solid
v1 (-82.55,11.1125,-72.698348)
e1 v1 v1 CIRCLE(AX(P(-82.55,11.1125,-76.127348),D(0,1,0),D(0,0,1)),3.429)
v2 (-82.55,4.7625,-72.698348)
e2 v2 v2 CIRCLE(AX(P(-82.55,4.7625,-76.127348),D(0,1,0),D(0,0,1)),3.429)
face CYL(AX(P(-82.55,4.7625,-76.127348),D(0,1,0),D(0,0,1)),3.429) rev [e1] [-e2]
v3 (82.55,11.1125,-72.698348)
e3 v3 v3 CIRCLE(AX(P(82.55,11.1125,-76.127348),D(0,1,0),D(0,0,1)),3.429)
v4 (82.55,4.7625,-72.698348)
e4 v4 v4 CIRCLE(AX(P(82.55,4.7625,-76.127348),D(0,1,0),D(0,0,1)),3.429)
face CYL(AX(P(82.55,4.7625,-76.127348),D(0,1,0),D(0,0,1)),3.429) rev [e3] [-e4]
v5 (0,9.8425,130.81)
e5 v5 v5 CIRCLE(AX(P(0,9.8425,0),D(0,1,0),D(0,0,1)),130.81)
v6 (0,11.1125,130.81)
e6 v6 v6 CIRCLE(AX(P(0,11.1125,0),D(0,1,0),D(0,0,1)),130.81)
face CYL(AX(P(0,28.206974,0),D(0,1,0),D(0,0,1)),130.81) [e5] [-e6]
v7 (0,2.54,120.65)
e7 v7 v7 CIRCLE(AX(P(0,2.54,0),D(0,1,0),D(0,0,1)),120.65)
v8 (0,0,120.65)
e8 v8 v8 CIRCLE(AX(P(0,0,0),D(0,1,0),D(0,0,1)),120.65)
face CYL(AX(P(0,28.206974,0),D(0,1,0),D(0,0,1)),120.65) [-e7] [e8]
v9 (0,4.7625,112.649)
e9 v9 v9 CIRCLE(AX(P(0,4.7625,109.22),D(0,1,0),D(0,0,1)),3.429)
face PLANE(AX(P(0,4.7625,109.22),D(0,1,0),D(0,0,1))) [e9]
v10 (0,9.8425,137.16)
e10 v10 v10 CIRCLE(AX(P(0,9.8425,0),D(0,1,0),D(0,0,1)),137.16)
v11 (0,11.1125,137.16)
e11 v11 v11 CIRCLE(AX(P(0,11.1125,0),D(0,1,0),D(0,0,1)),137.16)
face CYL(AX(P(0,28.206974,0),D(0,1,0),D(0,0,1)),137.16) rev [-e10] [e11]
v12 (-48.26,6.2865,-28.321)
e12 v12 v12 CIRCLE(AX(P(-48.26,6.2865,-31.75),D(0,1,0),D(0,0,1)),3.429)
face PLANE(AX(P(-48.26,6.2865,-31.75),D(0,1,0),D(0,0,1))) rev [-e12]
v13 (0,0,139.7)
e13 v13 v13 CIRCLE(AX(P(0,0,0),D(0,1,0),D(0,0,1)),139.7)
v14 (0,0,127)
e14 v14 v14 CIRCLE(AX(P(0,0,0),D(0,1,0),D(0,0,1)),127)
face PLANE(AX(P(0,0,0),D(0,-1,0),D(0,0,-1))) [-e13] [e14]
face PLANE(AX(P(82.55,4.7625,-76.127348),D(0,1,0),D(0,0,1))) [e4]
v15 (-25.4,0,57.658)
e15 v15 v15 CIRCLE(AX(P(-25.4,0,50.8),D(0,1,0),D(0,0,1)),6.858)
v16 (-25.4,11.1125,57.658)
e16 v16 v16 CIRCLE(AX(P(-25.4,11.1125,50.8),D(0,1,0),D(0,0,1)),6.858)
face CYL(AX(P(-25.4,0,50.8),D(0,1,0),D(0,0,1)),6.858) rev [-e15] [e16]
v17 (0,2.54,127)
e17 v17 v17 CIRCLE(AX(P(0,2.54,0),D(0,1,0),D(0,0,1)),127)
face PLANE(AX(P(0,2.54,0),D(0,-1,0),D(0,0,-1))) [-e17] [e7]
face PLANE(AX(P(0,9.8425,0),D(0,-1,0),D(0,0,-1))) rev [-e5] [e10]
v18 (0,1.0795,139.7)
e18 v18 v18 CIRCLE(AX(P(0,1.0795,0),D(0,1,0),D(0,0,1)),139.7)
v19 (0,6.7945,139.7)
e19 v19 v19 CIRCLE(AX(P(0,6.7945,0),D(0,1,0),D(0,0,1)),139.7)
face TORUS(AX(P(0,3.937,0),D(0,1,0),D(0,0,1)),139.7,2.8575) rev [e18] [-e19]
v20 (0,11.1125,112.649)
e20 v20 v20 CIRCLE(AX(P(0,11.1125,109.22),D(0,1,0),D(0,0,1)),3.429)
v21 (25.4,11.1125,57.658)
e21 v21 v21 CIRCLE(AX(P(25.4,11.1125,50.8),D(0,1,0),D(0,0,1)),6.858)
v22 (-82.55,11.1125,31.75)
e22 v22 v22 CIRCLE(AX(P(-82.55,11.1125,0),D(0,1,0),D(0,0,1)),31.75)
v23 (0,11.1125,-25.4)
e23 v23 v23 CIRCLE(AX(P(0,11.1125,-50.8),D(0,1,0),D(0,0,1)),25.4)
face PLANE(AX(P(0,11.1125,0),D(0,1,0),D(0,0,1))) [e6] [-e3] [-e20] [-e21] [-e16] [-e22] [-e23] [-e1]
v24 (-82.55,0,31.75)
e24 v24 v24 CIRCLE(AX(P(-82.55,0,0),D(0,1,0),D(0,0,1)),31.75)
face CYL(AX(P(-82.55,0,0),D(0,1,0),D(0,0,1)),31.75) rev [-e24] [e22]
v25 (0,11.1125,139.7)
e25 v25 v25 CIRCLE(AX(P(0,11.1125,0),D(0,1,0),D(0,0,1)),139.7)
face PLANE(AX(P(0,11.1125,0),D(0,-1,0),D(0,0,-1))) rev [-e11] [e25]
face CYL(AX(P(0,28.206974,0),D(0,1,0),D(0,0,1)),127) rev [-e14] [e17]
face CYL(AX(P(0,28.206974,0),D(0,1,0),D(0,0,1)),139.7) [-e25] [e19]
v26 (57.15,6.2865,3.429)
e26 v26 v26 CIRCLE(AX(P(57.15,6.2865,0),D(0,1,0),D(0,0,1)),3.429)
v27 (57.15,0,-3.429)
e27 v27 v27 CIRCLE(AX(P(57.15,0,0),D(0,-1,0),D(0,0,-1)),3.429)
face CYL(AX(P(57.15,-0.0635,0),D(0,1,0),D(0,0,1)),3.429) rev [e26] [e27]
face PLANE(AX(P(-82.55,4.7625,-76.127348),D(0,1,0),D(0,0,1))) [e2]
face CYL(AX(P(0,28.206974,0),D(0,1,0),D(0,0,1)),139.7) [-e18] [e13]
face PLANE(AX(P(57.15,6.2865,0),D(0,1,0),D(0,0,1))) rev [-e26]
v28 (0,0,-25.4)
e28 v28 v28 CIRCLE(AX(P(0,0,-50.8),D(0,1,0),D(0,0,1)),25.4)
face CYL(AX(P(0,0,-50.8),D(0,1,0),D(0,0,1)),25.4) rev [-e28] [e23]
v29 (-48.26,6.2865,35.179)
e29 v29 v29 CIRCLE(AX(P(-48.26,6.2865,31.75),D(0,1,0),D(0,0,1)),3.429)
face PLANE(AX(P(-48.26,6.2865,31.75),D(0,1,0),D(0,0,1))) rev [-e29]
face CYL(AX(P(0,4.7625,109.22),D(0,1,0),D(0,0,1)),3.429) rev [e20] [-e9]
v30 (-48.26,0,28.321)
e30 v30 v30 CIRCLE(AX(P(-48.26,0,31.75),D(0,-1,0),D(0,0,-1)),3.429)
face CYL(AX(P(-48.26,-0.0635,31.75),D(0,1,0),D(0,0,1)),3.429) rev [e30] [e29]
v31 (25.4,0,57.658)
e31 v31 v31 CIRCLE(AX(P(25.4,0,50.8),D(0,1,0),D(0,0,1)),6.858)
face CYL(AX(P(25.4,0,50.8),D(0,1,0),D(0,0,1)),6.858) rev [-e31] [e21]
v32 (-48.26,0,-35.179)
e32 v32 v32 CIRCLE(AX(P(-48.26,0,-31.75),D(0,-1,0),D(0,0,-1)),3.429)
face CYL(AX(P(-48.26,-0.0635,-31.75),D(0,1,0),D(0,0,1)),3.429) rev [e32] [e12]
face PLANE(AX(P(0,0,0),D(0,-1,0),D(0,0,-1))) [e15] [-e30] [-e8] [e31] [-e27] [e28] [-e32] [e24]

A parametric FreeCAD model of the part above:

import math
import FreeCAD as App
import Part
import Sketcher

V = App.Vector
Q = App.Units.Quantity

doc = App.newDocument("Part")
params = doc.addObject("Spreadsheet::Sheet", "Params")
for row, (alias, value) in enumerate([
    ("sketch1_width", "0.1 in"),
    ("sketch1_width2", "0.5 in"),
    ("sketch1_width3", "0.25 in"),
    ("sketch1_height", "0.17 in"),
    ("sketch1_height2", "0.05 in"),
    ("revolution_angle", "360 deg"),
    ("sketch2_diameter", "0.54 in"),
    ("sketch3_diameter", "2 in"),
    ("sketch3_diameter2", "2.5 in"),
    ("sketch4_diameter", "0.27 in"),
    ("pocket3_length", "0.25 in"),
    ("sketch5_diameter", "0.27 in"),
    ("pocket4_length", "0.25 in"),
], start=1):
    params.set(f"A{row}", alias)
    params.set(f"B{row}", "=" + value)
    params.setAlias(f"B{row}", alias)

body = doc.addObject("PartDesign::Body", "Body")

# Sketch on XY plane
sketch1 = body.newObject("Sketcher::SketchObject", "Sketch")
sketch1.AttachmentSupport = (doc.getObject("XY_Plane"), [""])
sketch1.MapMode = "FlatFace"
sketch1.addGeometry(Part.ArcOfCircle(Part.Circle(V(139.7, 3.937, 0), V(0, 0, 1), 2.8575), math.radians(90), math.radians(270)), False)
sketch1.addGeometry(Part.LineSegment(V(139.7, 6.7945, 0), V(139.7, 11.1125, 0)), False)
sketch1.addGeometry(Part.LineSegment(V(139.7, 11.1125, 0), V(137.16, 11.1125, 0)), False)
sketch1.addGeometry(Part.LineSegment(V(137.16, 11.1125, 0), V(137.16, 9.8425, 0)), False)
sketch1.addGeometry(Part.LineSegment(V(137.16, 9.8425, 0), V(130.81, 9.8425, 0)), False)
sketch1.addGeometry(Part.LineSegment(V(130.81, 9.8425, 0), V(130.81, 11.1125, 0)), False)
sketch1.addGeometry(Part.LineSegment(V(130.81, 11.1125, 0), V(0, 11.1125, 0)), False)
sketch1.addGeometry(Part.LineSegment(V(0, 11.1125, 0), V(0, 0, 0)), False)
sketch1.addGeometry(Part.LineSegment(V(0, 0, 0), V(120.65, 0, 0)), False)
sketch1.addGeometry(Part.LineSegment(V(120.65, 0, 0), V(120.65, 2.54, 0)), False)
sketch1.addGeometry(Part.LineSegment(V(120.65, 2.54, 0), V(127, 2.54, 0)), False)
sketch1.addGeometry(Part.LineSegment(V(127, 2.54, 0), V(127, 0, 0)), False)
sketch1.addGeometry(Part.LineSegment(V(127, 0, 0), V(139.7, 0, 0)), False)
sketch1.addGeometry(Part.LineSegment(V(139.7, 0, 0), V(139.7, 1.0795, 0)), False)
sketch1.addConstraint(Sketcher.Constraint("Coincident", 0, 1, 1, 1))
sketch1.addConstraint(Sketcher.Constraint("Coincident", 1, 2, 2, 1))
sketch1.addConstraint(Sketcher.Constraint("Coincident", 2, 2, 3, 1))
sketch1.addConstraint(Sketcher.Constraint("Coincident", 3, 2, 4, 1))
sketch1.addConstraint(Sketcher.Constraint("Coincident", 4, 2, 5, 1))
sketch1.addConstraint(Sketcher.Constraint("Coincident", 5, 2, 6, 1))
sketch1.addConstraint(Sketcher.Constraint("Coincident", 6, 2, 7, 1))
sketch1.addConstraint(Sketcher.Constraint("Coincident", 7, 2, 8, 1))
sketch1.addConstraint(Sketcher.Constraint("Coincident", 8, 2, 9, 1))
sketch1.addConstraint(Sketcher.Constraint("Coincident", 9, 2, 10, 1))
sketch1.addConstraint(Sketcher.Constraint("Coincident", 10, 2, 11, 1))
sketch1.addConstraint(Sketcher.Constraint("Coincident", 11, 2, 12, 1))
sketch1.addConstraint(Sketcher.Constraint("Coincident", 12, 2, 13, 1))
sketch1.addConstraint(Sketcher.Constraint("Coincident", 13, 2, 0, 2))
sketch1.addConstraint(Sketcher.Constraint("Vertical", 1))
sketch1.addConstraint(Sketcher.Constraint("Horizontal", 2))
sketch1.addConstraint(Sketcher.Constraint("Vertical", 3))
sketch1.addConstraint(Sketcher.Constraint("Horizontal", 4))
sketch1.addConstraint(Sketcher.Constraint("Vertical", 5))
sketch1.addConstraint(Sketcher.Constraint("Horizontal", 6))
sketch1.addConstraint(Sketcher.Constraint("Vertical", 7))
sketch1.addConstraint(Sketcher.Constraint("Horizontal", 8))
sketch1.addConstraint(Sketcher.Constraint("Vertical", 9))
sketch1.addConstraint(Sketcher.Constraint("Horizontal", 10))
sketch1.addConstraint(Sketcher.Constraint("Vertical", 11))
sketch1.addConstraint(Sketcher.Constraint("Horizontal", 12))
sketch1.addConstraint(Sketcher.Constraint("Vertical", 13))
sketch1.addConstraint(Sketcher.Constraint("Coincident", 7, 2, -1, 1))
sketch1.addConstraint(Sketcher.Constraint("PointOnObject", 11, 2, -1))
sketch1.addConstraint(Sketcher.Constraint("Horizontal", 2, 2, 5, 2))
sketch1.addConstraint(Sketcher.Constraint("Vertical", 1, 2, 12, 2))
sketch1.addConstraint(Sketcher.Constraint("Equal", 4, 10))
sketch1.addConstraint(Sketcher.Constraint("Equal", 2, 9))
sketch1.addConstraint(Sketcher.Constraint("DistanceX", 2, 2, 2, 1, Q("0.1 in")))
sketch1.addConstraint(Sketcher.Constraint("DistanceX", 12, 1, 12, 2, Q("0.5 in")))
sketch1.addConstraint(Sketcher.Constraint("DistanceX", -1, 1, 10, 2, Q("5 in")))
sketch1.addConstraint(Sketcher.Constraint("DistanceX", 4, 2, 4, 1, Q("0.25 in")))
sketch1.addConstraint(Sketcher.Constraint("DistanceY", 1, 1, 1, 2, Q("0.17 in")))
sketch1.addConstraint(Sketcher.Constraint("DistanceY", 3, 2, 3, 1, Q("0.05 in")))
sketch1.addConstraint(Sketcher.Constraint("DistanceX", -1, 1, 0, 3, Q("5.5 in")))
sketch1.addConstraint(Sketcher.Constraint("Radius", 0, Q("0.1125 in")))
sketch1.addConstraint(Sketcher.Constraint("DistanceY", 7, 2, 7, 1, Q("0.4375 in")))
sketch1.setExpression("Constraints[33]", "Params.sketch1_width")
sketch1.setExpression("Constraints[34]", "Params.sketch1_width2")
sketch1.setExpression("Constraints[36]", "Params.sketch1_width3")
sketch1.setExpression("Constraints[37]", "Params.sketch1_height")
sketch1.setExpression("Constraints[38]", "Params.sketch1_height2")
revolution = body.newObject("PartDesign::Revolution", "Revolution")
revolution.Profile = sketch1
revolution.ReferenceAxis = (sketch1, ["V_Axis"])
revolution.setExpression("Angle", "Params.revolution_angle")

# Sketch on XZ plane
sketch2 = body.newObject("Sketcher::SketchObject", "Sketch001")
sketch2.AttachmentSupport = (doc.getObject("XZ_Plane"), [""])
sketch2.MapMode = "FlatFace"
sketch2.AttachmentOffset = App.Placement(V(0, 0, -0.4375 * 25.4), App.Rotation())
sketch2.addGeometry(Part.Circle(V(-25.4, 50.8, 0), V(0, 0, 1), 6.858), False)
sketch2.addGeometry(Part.Circle(V(25.4, 50.8, 0), V(0, 0, 1), 6.858), False)
sketch2.addConstraint(Sketcher.Constraint("Equal", 0, 1))
sketch2.addConstraint(Sketcher.Constraint("Symmetric", 0, 3, 1, 3, -2))
sketch2.addConstraint(Sketcher.Constraint("Diameter", 0, Q("0.54 in")))
sketch2.addConstraint(Sketcher.Constraint("DistanceX", 0, 3, -1, 1, Q("1 in")))
sketch2.addConstraint(Sketcher.Constraint("DistanceY", -1, 1, 0, 3, Q("2 in")))
sketch2.setExpression("Constraints[2]", "Params.sketch2_diameter")
pocket1 = body.newObject("PartDesign::Pocket", "Pocket")
pocket1.Profile = sketch2
pocket1.Type = "ThroughAll"
pocket1.Reversed = True

# Sketch on XZ plane
sketch3 = body.newObject("Sketcher::SketchObject", "Sketch002")
sketch3.AttachmentSupport = (doc.getObject("XZ_Plane"), [""])
sketch3.MapMode = "FlatFace"
sketch3.AttachmentOffset = App.Placement(V(0, 0, -0.4375 * 25.4), App.Rotation())
sketch3.addGeometry(Part.Circle(V(0, -50.8, 0), V(0, 0, 1), 25.4), False)
sketch3.addGeometry(Part.Circle(V(-82.55, 0, 0), V(0, 0, 1), 31.75), False)
sketch3.addConstraint(Sketcher.Constraint("PointOnObject", 0, 3, -2))
sketch3.addConstraint(Sketcher.Constraint("PointOnObject", 1, 3, -1))
sketch3.addConstraint(Sketcher.Constraint("Diameter", 0, Q("2 in")))
sketch3.addConstraint(Sketcher.Constraint("Diameter", 1, Q("2.5 in")))
sketch3.addConstraint(Sketcher.Constraint("DistanceY", 0, 3, -1, 1, Q("2 in")))
sketch3.addConstraint(Sketcher.Constraint("DistanceX", 1, 3, -1, 1, Q("3.25 in")))
sketch3.setExpression("Constraints[2]", "Params.sketch3_diameter")
sketch3.setExpression("Constraints[3]", "Params.sketch3_diameter2")
pocket2 = body.newObject("PartDesign::Pocket", "Pocket001")
pocket2.Profile = sketch3
pocket2.Type = "ThroughAll"
pocket2.Reversed = True

# Sketch on XZ plane
sketch4 = body.newObject("Sketcher::SketchObject", "Sketch003")
sketch4.AttachmentSupport = (doc.getObject("XZ_Plane"), [""])
sketch4.MapMode = "FlatFace"
sketch4.AttachmentOffset = App.Placement(V(0, 0, -0.2475 * 25.4), App.Rotation())
sketch4.addGeometry(Part.Circle(V(57.15, 0, 0), V(0, 0, 1), 3.429), False)
sketch4.addGeometry(Part.Circle(V(-48.26, 31.75, 0), V(0, 0, 1), 3.429), False)
sketch4.addGeometry(Part.Circle(V(-48.26, -31.75, 0), V(0, 0, 1), 3.429), False)
sketch4.addConstraint(Sketcher.Constraint("Equal", 0, 1))
sketch4.addConstraint(Sketcher.Constraint("Equal", 1, 2))
sketch4.addConstraint(Sketcher.Constraint("Symmetric", 1, 3, 2, 3, -1))
sketch4.addConstraint(Sketcher.Constraint("PointOnObject", 0, 3, -1))
sketch4.addConstraint(Sketcher.Constraint("Diameter", 0, Q("0.27 in")))
sketch4.addConstraint(Sketcher.Constraint("DistanceX", 1, 3, -1, 1, Q("1.9 in")))
sketch4.addConstraint(Sketcher.Constraint("DistanceY", 2, 3, 1, 3, Q("2.5 in")))
sketch4.addConstraint(Sketcher.Constraint("DistanceX", -1, 1, 0, 3, Q("2.25 in")))
sketch4.setExpression("Constraints[4]", "Params.sketch4_diameter")
pocket3 = body.newObject("PartDesign::Pocket", "Pocket002")
pocket3.Profile = sketch4
pocket3.setExpression("Length", "Params.pocket3_length")
pocket3.Reversed = True

# Sketch on XZ plane
sketch5 = body.newObject("Sketcher::SketchObject", "Sketch004")
sketch5.AttachmentSupport = (doc.getObject("XZ_Plane"), [""])
sketch5.MapMode = "FlatFace"
sketch5.AttachmentOffset = App.Placement(V(0, 0, -0.4375 * 25.4), App.Rotation())
sketch5.addGeometry(Part.Circle(V(0, 109.22, 0), V(0, 0, 1), 3.429), False)
sketch5.addGeometry(Part.Circle(V(82.55, -76.127348, 0), V(0, 0, 1), 3.429), False)
sketch5.addGeometry(Part.Circle(V(-82.55, -76.127348, 0), V(0, 0, 1), 3.429), False)
sketch5.addConstraint(Sketcher.Constraint("Equal", 0, 1))
sketch5.addConstraint(Sketcher.Constraint("Equal", 1, 2))
sketch5.addConstraint(Sketcher.Constraint("Symmetric", 1, 3, 2, 3, -2))
sketch5.addConstraint(Sketcher.Constraint("PointOnObject", 0, 3, -2))
sketch5.addConstraint(Sketcher.Constraint("Diameter", 0, Q("0.27 in")))
sketch5.addConstraint(Sketcher.Constraint("DistanceY", -1, 1, 0, 3, Q("4.3 in")))
sketch5.addConstraint(Sketcher.Constraint("DistanceX", 2, 3, 1, 3, Q("6.5 in")))
sketch5.addConstraint(Sketcher.Constraint("DistanceY", 1, 3, -1, 1, Q("76.127348 mm")))
sketch5.setExpression("Constraints[4]", "Params.sketch5_diameter")
pocket4 = body.newObject("PartDesign::Pocket", "Pocket003")
pocket4.Profile = sketch5
pocket4.setExpression("Length", "Params.pocket4_length")
pocket4.Reversed = True

doc.recompute()
